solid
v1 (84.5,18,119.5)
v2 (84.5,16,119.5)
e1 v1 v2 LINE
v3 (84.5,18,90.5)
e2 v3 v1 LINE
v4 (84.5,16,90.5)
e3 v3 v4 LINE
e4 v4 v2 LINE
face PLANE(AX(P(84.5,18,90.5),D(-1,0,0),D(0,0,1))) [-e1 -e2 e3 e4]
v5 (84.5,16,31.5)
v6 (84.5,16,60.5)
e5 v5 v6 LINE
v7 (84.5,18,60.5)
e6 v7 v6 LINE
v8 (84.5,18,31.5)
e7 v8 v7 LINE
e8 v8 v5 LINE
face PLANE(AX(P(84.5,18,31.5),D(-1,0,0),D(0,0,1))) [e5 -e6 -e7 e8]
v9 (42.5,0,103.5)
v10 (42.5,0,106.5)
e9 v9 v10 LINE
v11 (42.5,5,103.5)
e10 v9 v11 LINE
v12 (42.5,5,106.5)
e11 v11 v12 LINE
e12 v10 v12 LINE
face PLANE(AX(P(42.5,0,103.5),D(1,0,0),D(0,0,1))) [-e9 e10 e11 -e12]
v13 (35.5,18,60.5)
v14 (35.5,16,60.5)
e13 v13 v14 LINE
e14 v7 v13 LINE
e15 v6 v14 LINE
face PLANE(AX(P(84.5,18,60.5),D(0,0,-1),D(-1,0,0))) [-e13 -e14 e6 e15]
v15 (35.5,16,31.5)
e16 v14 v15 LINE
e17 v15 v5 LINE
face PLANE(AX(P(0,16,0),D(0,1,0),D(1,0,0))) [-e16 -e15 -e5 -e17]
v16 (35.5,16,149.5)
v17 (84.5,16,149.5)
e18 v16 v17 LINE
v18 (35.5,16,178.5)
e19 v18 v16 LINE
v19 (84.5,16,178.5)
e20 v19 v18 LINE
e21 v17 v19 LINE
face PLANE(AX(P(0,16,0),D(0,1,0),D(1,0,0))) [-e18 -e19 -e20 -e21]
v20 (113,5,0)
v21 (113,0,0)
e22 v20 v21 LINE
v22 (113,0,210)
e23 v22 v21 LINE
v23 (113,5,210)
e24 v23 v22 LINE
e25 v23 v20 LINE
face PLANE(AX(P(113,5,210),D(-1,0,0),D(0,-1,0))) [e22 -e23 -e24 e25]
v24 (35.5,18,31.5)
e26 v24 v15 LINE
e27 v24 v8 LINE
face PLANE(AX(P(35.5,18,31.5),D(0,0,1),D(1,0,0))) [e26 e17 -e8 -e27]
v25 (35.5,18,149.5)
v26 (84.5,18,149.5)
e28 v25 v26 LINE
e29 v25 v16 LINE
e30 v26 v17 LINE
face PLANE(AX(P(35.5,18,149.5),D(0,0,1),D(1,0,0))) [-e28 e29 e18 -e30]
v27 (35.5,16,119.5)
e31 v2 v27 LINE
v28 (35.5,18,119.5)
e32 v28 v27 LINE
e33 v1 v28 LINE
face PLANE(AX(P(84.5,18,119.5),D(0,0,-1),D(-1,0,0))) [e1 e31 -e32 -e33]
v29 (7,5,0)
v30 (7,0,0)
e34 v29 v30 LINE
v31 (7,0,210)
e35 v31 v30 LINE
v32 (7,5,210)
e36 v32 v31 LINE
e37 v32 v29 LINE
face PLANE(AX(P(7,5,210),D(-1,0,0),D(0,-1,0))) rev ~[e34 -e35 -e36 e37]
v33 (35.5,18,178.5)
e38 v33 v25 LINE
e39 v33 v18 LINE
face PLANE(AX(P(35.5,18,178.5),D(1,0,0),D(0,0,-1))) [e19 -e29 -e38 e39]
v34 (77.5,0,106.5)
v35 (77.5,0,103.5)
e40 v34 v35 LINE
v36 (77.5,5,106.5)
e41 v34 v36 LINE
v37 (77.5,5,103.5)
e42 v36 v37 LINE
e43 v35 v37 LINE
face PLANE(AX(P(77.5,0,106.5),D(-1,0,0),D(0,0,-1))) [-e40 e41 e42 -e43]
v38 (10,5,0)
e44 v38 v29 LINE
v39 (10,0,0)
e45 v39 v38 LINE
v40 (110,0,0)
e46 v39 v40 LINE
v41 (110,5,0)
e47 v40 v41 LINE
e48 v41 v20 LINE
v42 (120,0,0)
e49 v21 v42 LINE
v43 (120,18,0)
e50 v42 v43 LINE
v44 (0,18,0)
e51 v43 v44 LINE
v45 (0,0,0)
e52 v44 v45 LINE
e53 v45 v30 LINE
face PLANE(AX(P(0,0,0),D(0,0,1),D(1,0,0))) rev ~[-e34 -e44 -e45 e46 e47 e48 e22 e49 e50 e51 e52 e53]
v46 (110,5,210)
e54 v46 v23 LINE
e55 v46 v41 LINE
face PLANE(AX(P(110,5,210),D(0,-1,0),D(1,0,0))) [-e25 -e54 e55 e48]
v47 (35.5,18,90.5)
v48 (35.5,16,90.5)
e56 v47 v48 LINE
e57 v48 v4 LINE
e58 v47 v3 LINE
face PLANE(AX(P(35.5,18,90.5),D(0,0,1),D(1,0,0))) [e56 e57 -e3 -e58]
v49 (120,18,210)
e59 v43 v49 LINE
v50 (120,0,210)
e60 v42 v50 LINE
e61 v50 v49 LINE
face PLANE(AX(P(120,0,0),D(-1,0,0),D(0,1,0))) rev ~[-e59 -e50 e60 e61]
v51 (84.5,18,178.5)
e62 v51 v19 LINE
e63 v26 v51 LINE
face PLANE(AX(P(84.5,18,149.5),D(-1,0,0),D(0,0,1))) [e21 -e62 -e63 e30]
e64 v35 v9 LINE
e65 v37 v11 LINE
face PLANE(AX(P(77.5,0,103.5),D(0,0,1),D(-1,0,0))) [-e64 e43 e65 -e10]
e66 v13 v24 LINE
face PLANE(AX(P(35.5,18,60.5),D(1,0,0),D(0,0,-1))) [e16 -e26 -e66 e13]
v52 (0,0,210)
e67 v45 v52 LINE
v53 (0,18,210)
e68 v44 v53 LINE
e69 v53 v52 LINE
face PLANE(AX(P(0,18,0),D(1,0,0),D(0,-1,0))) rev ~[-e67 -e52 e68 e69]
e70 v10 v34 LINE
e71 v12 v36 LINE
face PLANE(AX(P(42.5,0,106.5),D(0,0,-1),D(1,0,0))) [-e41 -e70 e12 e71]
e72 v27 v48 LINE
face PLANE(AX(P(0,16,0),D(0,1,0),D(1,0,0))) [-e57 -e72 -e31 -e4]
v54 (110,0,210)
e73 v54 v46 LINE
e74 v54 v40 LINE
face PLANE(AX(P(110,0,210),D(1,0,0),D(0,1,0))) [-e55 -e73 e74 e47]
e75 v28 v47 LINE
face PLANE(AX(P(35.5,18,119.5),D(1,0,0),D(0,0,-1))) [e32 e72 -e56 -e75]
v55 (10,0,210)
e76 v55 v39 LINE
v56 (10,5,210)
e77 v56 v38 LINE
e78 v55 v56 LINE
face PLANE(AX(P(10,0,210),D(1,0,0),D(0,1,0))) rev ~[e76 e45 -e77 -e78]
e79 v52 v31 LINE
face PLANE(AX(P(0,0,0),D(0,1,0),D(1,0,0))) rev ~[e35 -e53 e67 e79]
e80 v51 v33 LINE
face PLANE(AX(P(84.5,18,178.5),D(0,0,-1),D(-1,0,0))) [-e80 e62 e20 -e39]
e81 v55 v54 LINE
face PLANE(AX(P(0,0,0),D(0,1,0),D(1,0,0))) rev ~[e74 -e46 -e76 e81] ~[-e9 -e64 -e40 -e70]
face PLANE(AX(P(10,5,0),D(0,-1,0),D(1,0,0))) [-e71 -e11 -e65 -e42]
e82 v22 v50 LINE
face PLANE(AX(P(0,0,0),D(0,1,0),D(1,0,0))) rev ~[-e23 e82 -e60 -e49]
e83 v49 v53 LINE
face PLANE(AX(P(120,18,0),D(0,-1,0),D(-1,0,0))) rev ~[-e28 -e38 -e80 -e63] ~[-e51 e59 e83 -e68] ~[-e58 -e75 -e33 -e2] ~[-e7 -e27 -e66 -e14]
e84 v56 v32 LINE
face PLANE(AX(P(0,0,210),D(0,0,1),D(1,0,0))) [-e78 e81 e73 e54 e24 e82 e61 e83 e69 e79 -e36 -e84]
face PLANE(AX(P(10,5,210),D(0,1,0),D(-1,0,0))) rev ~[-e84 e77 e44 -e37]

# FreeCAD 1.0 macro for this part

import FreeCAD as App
import Part
import Sketcher
from FreeCAD import Vector
Q = App.Units.Quantity

doc = App.newDocument("Part")
body = doc.addObject("PartDesign::Body", "Body")

# Sketch on XY plane
sketch1 = body.newObject("Sketcher::SketchObject", "Sketch")
sketch1.AttachmentSupport = (doc.getObject("XY_Plane"), [""])
sketch1.MapMode = "FlatFace"
sketch1.addGeometry([
    Part.LineSegment(Vector(0, 18, 0), Vector(0, 0, 0)),
    Part.LineSegment(Vector(0, 0, 0), Vector(120, 0, 0)),
    Part.LineSegment(Vector(120, 0, 0), Vector(120, 18, 0)),
    Part.LineSegment(Vector(120, 18, 0), Vector(0, 18, 0)),
], False)
sketch1.addConstraint([
    Sketcher.Constraint("Coincident", 0, 2, 1, 1),
    Sketcher.Constraint("Coincident", 1, 2, 2, 1),
    Sketcher.Constraint("Coincident", 2, 2, 3, 1),
    Sketcher.Constraint("Coincident", 3, 2, 0, 1),
    Sketcher.Constraint("Vertical", 0),
    Sketcher.Constraint("Horizontal", 1),
    Sketcher.Constraint("Vertical", 2),
    Sketcher.Constraint("Horizontal", 3),
    Sketcher.Constraint("Coincident", 0, 2, -1, 1),
    Sketcher.Constraint("DistanceX", 1, 1, 1, 2, Q("120 mm")),
    Sketcher.Constraint("DistanceY", 0, 2, 0, 1, Q("18 mm")),
])
pad1 = body.newObject("PartDesign::Pad", "Pad")
pad1.Profile = sketch1
pad1.Length = 210

# Sketch on XY plane
sketch2 = body.newObject("Sketcher::SketchObject", "Sketch001")
sketch2.AttachmentSupport = (doc.getObject("XY_Plane"), [""])
sketch2.MapMode = "FlatFace"
sketch2.AttachmentOffset = App.Placement(Vector(0, 0, 210), App.Rotation())
sketch2.addGeometry([
    Part.LineSegment(Vector(7, 5, 0), Vector(7, 0, 0)),  # 0
    Part.LineSegment(Vector(7, 0, 0), Vector(10, 0, 0)),  # 1
    Part.LineSegment(Vector(10, 0, 0), Vector(10, 5, 0)),  # 2
    Part.LineSegment(Vector(10, 5, 0), Vector(7, 5, 0)),  # 3
    Part.LineSegment(Vector(110, 5, 0), Vector(110, 0, 0)),  # 4
    Part.LineSegment(Vector(110, 0, 0), Vector(113, 0, 0)),  # 5
    Part.LineSegment(Vector(113, 0, 0), Vector(113, 5, 0)),  # 6
    Part.LineSegment(Vector(113, 5, 0), Vector(110, 5, 0)),  # 7
], False)
sketch2.addConstraint([
    Sketcher.Constraint("Coincident", 0, 2, 1, 1),
    Sketcher.Constraint("Coincident", 1, 2, 2, 1),
    Sketcher.Constraint("Coincident", 2, 2, 3, 1),
    Sketcher.Constraint("Coincident", 3, 2, 0, 1),
    Sketcher.Constraint("Coincident", 4, 2, 5, 1),
    Sketcher.Constraint("Coincident", 5, 2, 6, 1),
    Sketcher.Constraint("Coincident", 6, 2, 7, 1),
    Sketcher.Constraint("Coincident", 7, 2, 4, 1),
    Sketcher.Constraint("Vertical", 0),
    Sketcher.Constraint("Horizontal", 1),
    Sketcher.Constraint("Vertical", 2),
    Sketcher.Constraint("Horizontal", 3),
    Sketcher.Constraint("Vertical", 4),
    Sketcher.Constraint("Horizontal", 5),
    Sketcher.Constraint("Vertical", 6),
    Sketcher.Constraint("Horizontal", 7),
    Sketcher.Constraint("PointOnObject", 0, 2, -1),
    Sketcher.Constraint("PointOnObject", 4, 2, -1),
    Sketcher.Constraint("Horizontal", 3, 2, 6, 2),
    Sketcher.Constraint("Equal", 3, 5),
    Sketcher.Constraint("DistanceX", 1, 1, 1, 2, Q("3 mm")),
    Sketcher.Constraint("DistanceY", 0, 2, 0, 1, Q("5 mm")),
    Sketcher.Constraint("DistanceX", 1, 2, 4, 2, Q("100 mm")),
    Sketcher.Constraint("DistanceX", -1, 1, 0, 2, Q("7 mm")),
])
pocket1 = body.newObject("PartDesign::Pocket", "Pocket")
pocket1.Profile = sketch2
pocket1.Type = "ThroughAll"

# Sketch on XZ plane
sketch3 = body.newObject("Sketcher::SketchObject", "Sketch002")
sketch3.AttachmentSupport = (doc.getObject("XZ_Plane"), [""])
sketch3.MapMode = "FlatFace"
sketch3.AttachmentOffset = App.Placement(Vector(0, 0, -18), App.Rotation())
sketch3.addGeometry([
    Part.LineSegment(Vector(84, 32, 0), Vector(36, 32, 0)),  # 0
    Part.LineSegment(Vector(36, 32, 0), Vector(36, 60, 0)),  # 1
    Part.LineSegment(Vector(36, 60, 0), Vector(84, 60, 0)),  # 2
    Part.LineSegment(Vector(84, 60, 0), Vector(84, 32, 0)),  # 3
    Part.LineSegment(Vector(84, 90, 0), Vector(36, 90, 0)),  # 4
    Part.LineSegment(Vector(36, 90, 0), Vector(36, 120, 0)),  # 5
    Part.LineSegment(Vector(36, 120, 0), Vector(84, 120, 0)),  # 6
    Part.LineSegment(Vector(84, 120, 0), Vector(84, 90, 0)),  # 7
    Part.LineSegment(Vector(84, 150, 0), Vector(36, 150, 0)),  # 8
    Part.LineSegment(Vector(36, 150, 0), Vector(36, 178, 0)),  # 9
    Part.LineSegment(Vector(36, 178, 0), Vector(84, 178, 0)),  # 10
    Part.LineSegment(Vector(84, 178, 0), Vector(84, 150, 0)),  # 11
], False)
sketch3.addConstraint([
    Sketcher.Constraint("Coincident", 0, 2, 1, 1),
    Sketcher.Constraint("Coincident", 1, 2, 2, 1),
    Sketcher.Constraint("Coincident", 2, 2, 3, 1),
    Sketcher.Constraint("Coincident", 3, 2, 0, 1),
    Sketcher.Constraint("Coincident", 4, 2, 5, 1),
    Sketcher.Constraint("Coincident", 5, 2, 6, 1),
    Sketcher.Constraint("Coincident", 6, 2, 7, 1),
    Sketcher.Constraint("Coincident", 7, 2, 4, 1),
    Sketcher.Constraint("Coincident", 8, 2, 9, 1),
    Sketcher.Constraint("Coincident", 9, 2, 10, 1),
    Sketcher.Constraint("Coincident", 10, 2, 11, 1),
    Sketcher.Constraint("Coincident", 11, 2, 8, 1),
    Sketcher.Constraint("Horizontal", 0),
    Sketcher.Constraint("Vertical", 1),
    Sketcher.Constraint("Horizontal", 2),
    Sketcher.Constraint("Vertical", 3),
    Sketcher.Constraint("Horizontal", 4),
    Sketcher.Constraint("Vertical", 5),
    Sketcher.Constraint("Horizontal", 6),
    Sketcher.Constraint("Vertical", 7),
    Sketcher.Constraint("Horizontal", 8),
    Sketcher.Constraint("Vertical", 9),
    Sketcher.Constraint("Horizontal", 10),
    Sketcher.Constraint("Vertical", 11),
    Sketcher.Constraint("Vertical", 1, 2, 4, 2),
    Sketcher.Constraint("Vertical", 3, 2, 6, 2),
    Sketcher.Constraint("Vertical", 5, 2, 8, 2),
    Sketcher.Constraint("Vertical", 7, 2, 10, 2),
    Sketcher.Constraint("Equal", 3, 5),
    Sketcher.Constraint("Equal", 7, 9),
    Sketcher.Constraint("DistanceX", 0, 2, 0, 1, Q("49 mm")),
    Sketcher.Constraint("DistanceY", 1, 1, 1, 2, Q("29 mm")),
    Sketcher.Constraint("DistanceY", 0, 2, 4, 2, Q("59 mm")),
    Sketcher.Constraint("DistanceY", 4, 2, 8, 2, Q("59 mm")),
    Sketcher.Constraint("DistanceX", -1, 1, 0, 2, Q("35.5 mm")),
    Sketcher.Constraint("DistanceY", -1, 1, 0, 2, Q("31.5 mm")),
])
pocket2 = body.newObject("PartDesign::Pocket", "Pocket001")
pocket2.Profile = sketch3
pocket2.Length = 2
pocket2.Reversed = True

# Sketch on XZ plane
sketch4 = body.newObject("Sketcher::SketchObject", "Sketch003")
sketch4.AttachmentSupport = (doc.getObject("XZ_Plane"), [""])
sketch4.MapMode = "FlatFace"
sketch4.addGeometry([
    Part.LineSegment(Vector(77.5, 106.5, 0), Vector(42.5, 106.5, 0)),
    Part.LineSegment(Vector(42.5, 106.5, 0), Vector(42.5, 103.5, 0)),
    Part.LineSegment(Vector(42.5, 103.5, 0), Vector(77.5, 103.5, 0)),
    Part.LineSegment(Vector(77.5, 103.5, 0), Vector(77.5, 106.5, 0)),
], False)
sketch4.addConstraint([
    Sketcher.Constraint("Coincident", 0, 2, 1, 1),
    Sketcher.Constraint("Coincident", 1, 2, 2, 1),
    Sketcher.Constraint("Coincident", 2, 2, 3, 1),
    Sketcher.Constraint("Coincident", 3, 2, 0, 1),
    Sketcher.Constraint("Horizontal", 0),
    Sketcher.Constraint("Vertical", 1),
    Sketcher.Constraint("Horizontal", 2),
    Sketcher.Constraint("Vertical", 3),
    Sketcher.Constraint("DistanceX", 0, 2, 0, 1, Q("35 mm")),
    Sketcher.Constraint("DistanceY", 1, 2, 1, 1, Q("3 mm")),
    Sketcher.Constraint("DistanceX", -1, 1, 0, 2, Q("42.5 mm")),
    Sketcher.Constraint("DistanceY", -1, 1, 0, 2, Q("106.5 mm")),
])
pocket3 = body.newObject("PartDesign::Pocket", "Pocket002")
pocket3.Profile = sketch4
pocket3.Length = 5

doc.recompute()
